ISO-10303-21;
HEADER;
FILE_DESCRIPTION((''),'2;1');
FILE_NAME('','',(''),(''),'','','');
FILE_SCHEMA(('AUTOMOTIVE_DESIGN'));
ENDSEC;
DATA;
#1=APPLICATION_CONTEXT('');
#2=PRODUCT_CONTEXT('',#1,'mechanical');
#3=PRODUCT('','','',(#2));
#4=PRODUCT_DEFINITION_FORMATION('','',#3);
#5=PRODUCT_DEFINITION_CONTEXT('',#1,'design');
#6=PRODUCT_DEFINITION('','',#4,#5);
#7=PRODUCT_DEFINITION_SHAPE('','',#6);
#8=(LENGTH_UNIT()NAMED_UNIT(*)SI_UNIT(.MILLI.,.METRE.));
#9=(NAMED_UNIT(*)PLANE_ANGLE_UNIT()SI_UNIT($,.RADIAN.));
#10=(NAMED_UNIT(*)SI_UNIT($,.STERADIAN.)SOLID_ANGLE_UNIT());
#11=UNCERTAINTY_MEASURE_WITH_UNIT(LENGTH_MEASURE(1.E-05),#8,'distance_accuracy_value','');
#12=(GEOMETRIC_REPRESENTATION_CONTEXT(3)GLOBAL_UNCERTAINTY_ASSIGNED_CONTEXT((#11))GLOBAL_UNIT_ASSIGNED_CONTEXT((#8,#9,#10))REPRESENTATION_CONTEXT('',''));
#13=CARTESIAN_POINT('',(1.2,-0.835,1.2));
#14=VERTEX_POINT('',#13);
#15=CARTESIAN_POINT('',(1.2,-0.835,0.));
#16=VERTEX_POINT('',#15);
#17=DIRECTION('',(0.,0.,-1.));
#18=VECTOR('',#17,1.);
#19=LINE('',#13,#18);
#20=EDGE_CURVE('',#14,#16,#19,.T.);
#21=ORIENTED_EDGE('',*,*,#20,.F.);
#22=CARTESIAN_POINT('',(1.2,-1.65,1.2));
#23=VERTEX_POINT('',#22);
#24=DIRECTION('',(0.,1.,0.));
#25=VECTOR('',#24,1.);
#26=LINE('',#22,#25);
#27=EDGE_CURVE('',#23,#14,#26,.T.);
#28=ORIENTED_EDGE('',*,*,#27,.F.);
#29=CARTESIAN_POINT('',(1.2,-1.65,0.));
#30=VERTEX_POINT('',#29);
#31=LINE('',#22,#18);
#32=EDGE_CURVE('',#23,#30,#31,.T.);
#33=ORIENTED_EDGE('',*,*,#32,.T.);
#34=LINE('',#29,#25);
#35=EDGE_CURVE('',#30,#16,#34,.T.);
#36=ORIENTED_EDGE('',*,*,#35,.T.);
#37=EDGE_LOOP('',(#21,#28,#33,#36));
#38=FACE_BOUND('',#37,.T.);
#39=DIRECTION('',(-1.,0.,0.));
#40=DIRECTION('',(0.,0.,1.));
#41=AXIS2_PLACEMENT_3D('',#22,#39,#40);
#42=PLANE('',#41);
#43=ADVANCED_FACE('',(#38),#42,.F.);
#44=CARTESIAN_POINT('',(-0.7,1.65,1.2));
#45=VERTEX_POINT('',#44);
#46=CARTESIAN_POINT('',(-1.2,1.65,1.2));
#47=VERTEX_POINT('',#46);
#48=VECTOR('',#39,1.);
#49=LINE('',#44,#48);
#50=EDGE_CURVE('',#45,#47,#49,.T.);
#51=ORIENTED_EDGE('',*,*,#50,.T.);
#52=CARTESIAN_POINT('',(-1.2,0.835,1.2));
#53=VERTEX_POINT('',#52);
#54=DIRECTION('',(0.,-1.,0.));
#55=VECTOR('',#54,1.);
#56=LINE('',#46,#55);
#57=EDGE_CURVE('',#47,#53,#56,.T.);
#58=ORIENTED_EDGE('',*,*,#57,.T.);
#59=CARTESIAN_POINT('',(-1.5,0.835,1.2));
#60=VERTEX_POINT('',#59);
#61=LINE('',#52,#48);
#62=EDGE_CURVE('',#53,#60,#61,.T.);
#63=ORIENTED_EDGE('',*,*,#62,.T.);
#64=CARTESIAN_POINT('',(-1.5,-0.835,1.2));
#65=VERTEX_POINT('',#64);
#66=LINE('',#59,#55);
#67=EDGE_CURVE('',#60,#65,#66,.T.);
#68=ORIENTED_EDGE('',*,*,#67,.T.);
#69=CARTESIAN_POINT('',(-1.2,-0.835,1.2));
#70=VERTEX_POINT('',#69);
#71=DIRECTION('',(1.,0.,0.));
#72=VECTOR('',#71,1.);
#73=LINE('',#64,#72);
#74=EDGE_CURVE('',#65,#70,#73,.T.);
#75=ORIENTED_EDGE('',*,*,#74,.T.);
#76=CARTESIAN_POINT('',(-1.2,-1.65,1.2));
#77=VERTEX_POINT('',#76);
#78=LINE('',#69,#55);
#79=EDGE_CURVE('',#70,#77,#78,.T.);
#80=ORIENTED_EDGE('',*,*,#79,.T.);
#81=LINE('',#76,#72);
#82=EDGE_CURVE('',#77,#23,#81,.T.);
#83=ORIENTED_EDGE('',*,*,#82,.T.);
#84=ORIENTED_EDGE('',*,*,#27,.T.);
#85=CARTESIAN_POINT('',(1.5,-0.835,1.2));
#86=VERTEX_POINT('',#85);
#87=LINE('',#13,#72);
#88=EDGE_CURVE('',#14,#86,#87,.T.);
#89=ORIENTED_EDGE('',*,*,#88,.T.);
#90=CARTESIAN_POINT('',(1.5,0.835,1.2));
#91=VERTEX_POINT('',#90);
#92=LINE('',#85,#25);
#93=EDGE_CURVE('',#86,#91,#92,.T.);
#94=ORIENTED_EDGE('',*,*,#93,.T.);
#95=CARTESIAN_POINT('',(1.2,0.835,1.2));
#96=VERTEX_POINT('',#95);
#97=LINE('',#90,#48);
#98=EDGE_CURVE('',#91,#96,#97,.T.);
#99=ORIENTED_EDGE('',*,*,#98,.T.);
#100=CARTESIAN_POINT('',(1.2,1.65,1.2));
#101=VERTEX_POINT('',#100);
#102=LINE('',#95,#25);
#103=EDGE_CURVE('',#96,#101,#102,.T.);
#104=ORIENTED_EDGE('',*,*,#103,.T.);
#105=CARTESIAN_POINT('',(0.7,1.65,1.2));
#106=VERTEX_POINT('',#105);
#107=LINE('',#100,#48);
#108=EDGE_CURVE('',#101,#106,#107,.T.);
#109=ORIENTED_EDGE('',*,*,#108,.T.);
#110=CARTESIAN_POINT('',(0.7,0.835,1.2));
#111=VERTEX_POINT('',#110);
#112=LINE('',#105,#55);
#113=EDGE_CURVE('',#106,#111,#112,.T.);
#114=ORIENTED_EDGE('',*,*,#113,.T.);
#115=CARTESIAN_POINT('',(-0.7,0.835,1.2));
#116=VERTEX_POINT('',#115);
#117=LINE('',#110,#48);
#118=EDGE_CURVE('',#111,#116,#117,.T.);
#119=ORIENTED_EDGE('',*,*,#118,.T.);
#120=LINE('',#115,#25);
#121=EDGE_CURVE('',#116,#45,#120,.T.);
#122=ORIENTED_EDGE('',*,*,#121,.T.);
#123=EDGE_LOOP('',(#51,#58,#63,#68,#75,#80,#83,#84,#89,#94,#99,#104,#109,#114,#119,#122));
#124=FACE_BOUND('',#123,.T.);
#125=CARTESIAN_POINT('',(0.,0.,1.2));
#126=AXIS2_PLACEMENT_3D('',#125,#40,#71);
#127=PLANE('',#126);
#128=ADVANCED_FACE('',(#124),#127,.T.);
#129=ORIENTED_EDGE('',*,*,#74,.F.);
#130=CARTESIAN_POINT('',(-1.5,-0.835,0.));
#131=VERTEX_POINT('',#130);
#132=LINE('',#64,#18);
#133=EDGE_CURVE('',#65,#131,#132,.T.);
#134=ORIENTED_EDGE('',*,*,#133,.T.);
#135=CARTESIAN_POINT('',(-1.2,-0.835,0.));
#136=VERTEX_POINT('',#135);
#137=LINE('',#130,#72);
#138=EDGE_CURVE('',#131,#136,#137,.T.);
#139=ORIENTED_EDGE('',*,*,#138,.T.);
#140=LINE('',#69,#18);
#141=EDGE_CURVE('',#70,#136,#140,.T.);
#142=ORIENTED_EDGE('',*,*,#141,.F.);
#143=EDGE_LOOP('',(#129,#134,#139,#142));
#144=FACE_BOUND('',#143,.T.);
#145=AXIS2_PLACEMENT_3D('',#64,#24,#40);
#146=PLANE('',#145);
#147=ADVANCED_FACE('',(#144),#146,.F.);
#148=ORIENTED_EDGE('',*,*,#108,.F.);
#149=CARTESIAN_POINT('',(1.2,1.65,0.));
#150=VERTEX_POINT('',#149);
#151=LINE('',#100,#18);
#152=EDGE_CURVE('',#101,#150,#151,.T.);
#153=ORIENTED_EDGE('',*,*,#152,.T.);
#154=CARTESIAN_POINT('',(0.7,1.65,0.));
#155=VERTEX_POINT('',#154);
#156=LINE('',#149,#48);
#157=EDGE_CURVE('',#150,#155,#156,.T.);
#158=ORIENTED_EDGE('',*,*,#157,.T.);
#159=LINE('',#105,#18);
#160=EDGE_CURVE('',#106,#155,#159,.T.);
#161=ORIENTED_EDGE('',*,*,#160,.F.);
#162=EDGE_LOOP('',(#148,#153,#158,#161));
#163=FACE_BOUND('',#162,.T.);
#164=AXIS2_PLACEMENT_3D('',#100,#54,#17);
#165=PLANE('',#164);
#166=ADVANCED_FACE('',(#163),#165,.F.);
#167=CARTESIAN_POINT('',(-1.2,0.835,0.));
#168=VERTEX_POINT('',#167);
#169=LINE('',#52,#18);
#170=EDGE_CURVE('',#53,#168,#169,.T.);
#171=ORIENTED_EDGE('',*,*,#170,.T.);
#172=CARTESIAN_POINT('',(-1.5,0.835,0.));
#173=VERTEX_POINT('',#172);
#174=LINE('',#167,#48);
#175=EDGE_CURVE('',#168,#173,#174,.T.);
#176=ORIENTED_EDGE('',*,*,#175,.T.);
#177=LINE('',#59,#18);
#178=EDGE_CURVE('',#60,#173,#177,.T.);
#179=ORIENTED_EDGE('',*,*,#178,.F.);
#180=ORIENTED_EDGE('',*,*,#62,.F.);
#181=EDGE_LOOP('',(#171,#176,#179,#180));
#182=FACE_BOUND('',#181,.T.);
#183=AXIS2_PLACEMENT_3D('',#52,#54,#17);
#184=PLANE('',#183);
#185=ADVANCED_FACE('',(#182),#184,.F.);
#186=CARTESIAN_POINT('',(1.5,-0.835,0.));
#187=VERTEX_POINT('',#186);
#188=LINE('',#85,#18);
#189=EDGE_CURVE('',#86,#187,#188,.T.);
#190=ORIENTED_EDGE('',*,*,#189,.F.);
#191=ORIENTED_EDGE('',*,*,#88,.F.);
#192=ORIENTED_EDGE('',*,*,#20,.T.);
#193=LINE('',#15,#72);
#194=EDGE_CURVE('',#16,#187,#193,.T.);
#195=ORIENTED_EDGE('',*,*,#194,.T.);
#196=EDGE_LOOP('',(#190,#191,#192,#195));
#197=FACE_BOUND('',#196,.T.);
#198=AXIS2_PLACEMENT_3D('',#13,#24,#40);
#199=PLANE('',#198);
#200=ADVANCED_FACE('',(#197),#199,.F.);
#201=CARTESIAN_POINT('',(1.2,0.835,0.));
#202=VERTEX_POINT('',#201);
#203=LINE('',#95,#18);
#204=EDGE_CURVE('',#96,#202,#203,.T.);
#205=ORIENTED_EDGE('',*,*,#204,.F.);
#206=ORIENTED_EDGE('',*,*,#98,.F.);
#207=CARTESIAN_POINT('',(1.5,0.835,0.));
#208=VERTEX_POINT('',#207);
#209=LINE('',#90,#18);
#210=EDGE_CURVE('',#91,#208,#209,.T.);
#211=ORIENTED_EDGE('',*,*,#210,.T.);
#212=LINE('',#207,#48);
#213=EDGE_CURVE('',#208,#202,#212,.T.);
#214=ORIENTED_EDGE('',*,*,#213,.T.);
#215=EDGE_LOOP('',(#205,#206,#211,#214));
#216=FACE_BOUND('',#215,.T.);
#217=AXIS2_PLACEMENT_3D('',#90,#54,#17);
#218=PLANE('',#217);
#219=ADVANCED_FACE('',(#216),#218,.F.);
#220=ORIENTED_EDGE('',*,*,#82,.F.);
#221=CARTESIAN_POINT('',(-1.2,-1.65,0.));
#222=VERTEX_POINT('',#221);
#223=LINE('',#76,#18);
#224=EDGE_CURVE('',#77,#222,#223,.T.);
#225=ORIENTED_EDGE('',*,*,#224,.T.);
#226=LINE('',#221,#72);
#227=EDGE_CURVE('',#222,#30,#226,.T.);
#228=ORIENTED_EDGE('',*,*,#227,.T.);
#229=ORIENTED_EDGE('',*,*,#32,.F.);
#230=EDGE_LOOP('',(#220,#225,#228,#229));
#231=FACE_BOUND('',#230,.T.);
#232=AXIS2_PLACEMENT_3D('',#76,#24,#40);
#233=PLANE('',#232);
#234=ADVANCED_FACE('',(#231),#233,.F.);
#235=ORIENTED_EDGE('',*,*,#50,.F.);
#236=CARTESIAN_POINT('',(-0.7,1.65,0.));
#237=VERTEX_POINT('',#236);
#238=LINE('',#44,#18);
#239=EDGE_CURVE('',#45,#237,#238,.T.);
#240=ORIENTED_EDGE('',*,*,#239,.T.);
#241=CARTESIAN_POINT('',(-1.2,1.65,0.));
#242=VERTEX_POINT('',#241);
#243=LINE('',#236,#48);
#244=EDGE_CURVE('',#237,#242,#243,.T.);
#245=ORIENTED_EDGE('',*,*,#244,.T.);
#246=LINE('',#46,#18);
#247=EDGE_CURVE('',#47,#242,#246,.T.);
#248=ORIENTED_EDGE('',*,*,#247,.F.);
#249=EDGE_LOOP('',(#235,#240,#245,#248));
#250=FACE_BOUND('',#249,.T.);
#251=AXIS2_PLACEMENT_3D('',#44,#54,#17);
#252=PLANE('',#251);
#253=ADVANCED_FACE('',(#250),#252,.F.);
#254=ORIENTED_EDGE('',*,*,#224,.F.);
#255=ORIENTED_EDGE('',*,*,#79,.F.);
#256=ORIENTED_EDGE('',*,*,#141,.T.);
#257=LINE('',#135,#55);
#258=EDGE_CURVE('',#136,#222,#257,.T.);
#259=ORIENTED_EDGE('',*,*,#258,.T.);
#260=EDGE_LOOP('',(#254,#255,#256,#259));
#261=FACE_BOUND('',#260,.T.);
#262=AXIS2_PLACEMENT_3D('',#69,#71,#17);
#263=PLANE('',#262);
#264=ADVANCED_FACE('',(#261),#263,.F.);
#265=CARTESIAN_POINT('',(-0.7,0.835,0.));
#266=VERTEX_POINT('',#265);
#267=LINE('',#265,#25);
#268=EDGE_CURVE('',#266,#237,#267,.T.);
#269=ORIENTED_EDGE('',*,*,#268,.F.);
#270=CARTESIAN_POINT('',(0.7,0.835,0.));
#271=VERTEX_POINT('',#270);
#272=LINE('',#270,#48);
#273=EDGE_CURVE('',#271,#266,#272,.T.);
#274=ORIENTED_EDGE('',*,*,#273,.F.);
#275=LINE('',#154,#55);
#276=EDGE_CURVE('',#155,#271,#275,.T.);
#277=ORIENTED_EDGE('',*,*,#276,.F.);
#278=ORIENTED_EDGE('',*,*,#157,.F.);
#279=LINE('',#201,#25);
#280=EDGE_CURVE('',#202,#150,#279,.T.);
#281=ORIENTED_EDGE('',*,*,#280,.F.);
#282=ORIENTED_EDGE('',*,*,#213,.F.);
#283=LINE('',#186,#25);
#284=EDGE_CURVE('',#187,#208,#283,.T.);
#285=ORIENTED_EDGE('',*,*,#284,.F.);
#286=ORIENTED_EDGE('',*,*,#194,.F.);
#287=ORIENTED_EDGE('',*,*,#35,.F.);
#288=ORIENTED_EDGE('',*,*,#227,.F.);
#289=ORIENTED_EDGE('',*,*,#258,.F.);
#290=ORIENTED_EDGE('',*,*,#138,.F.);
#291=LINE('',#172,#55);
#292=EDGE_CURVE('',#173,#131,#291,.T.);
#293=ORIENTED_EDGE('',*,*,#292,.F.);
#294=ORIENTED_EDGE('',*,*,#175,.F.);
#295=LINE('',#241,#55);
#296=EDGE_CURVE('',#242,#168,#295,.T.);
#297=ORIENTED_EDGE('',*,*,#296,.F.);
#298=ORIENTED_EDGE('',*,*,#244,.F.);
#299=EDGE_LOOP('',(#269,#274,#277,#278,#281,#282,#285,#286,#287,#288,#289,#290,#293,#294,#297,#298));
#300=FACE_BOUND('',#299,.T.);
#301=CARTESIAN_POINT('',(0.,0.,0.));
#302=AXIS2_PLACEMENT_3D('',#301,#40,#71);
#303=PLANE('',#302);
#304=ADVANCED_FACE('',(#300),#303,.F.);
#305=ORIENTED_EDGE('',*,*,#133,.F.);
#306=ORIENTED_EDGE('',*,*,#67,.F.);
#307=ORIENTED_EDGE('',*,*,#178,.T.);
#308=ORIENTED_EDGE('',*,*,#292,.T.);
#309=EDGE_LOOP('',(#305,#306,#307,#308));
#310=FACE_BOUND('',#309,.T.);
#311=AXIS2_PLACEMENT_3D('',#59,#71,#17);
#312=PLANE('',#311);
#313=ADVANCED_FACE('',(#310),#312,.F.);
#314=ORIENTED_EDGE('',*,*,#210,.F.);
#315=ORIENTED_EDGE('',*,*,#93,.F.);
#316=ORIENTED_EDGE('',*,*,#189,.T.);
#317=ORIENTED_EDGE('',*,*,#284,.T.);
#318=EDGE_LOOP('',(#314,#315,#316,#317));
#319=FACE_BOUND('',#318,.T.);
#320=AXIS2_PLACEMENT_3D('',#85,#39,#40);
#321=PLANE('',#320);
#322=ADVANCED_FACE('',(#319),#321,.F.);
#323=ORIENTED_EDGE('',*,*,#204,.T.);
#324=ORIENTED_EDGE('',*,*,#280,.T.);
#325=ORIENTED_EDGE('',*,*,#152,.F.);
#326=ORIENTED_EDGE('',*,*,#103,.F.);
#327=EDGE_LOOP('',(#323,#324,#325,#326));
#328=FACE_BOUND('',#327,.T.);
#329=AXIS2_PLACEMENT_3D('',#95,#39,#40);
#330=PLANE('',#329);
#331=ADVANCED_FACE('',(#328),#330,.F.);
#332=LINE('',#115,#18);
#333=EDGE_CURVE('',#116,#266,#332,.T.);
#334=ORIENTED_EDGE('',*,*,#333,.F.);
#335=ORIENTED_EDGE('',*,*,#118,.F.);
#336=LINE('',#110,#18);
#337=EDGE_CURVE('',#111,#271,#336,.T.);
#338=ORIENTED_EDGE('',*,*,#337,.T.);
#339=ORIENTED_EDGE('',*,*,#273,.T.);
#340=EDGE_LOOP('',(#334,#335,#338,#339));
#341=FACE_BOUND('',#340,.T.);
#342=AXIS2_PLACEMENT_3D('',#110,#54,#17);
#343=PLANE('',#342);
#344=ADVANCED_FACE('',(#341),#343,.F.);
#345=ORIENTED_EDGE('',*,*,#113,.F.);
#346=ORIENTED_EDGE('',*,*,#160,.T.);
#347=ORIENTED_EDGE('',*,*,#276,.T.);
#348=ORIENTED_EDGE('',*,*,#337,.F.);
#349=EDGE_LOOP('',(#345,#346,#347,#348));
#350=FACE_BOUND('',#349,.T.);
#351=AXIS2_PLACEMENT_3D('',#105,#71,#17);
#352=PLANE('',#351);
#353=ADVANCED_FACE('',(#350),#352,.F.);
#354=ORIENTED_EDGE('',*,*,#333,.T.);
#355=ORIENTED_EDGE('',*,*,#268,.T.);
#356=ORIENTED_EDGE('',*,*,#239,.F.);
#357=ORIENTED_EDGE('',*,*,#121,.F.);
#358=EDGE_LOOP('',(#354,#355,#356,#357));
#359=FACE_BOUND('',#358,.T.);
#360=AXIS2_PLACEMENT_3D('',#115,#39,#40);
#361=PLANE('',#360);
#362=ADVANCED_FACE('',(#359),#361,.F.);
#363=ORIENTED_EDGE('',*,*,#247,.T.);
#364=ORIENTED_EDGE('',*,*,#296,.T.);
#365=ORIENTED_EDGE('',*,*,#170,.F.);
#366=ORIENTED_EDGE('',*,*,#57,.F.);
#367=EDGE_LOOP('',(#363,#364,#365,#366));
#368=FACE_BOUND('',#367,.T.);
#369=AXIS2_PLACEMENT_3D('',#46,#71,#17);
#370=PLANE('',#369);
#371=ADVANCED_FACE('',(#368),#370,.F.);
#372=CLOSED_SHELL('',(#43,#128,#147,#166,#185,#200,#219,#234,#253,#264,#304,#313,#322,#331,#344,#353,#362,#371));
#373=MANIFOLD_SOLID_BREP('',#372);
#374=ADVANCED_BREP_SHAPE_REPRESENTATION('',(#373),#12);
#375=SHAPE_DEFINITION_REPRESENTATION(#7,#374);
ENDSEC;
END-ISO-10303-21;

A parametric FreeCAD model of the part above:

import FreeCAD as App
import Part
import Sketcher

V = App.Vector

doc = App.newDocument("Part")
params = doc.addObject("Spreadsheet::Sheet", "Params")
for row, (alias, value) in enumerate([
    ("sketch1_width", "0.3 mm"),
    ("sketch1_width2", "2.4 mm"),
    ("sketch1_width3", "0.5 mm"),
    ("sketch1_height", "1.67 mm"),
    ("pad1_length", "1.2 mm"),
], start=1):
    params.set(f"A{row}", alias)
    params.set(f"B{row}", "=" + value)
    params.setAlias(f"B{row}", alias)

body = doc.addObject("PartDesign::Body", "Body")

# Sketch on XY plane
sketch1 = body.newObject("Sketcher::SketchObject", "Sketch")
sketch1.AttachmentSupport = (doc.getObject("XY_Plane"), [""])
sketch1.MapMode = "FlatFace"
sketch1.addGeometry([
    Part.LineSegment(V(-1.5, -0.835, 0), V(-1.2, -0.835, 0)),  # 0
    Part.LineSegment(V(-1.2, -0.835, 0), V(-1.2, -1.65, 0)),  # 1
    Part.LineSegment(V(-1.2, -1.65, 0), V(1.2, -1.65, 0)),  # 2
    Part.LineSegment(V(1.2, -1.65, 0), V(1.2, -0.835, 0)),  # 3
    Part.LineSegment(V(1.2, -0.835, 0), V(1.5, -0.835, 0)),  # 4
    Part.LineSegment(V(1.5, -0.835, 0), V(1.5, 0.835, 0)),  # 5
    Part.LineSegment(V(1.5, 0.835, 0), V(1.2, 0.835, 0)),  # 6
    Part.LineSegment(V(1.2, 0.835, 0), V(1.2, 1.65, 0)),  # 7
    Part.LineSegment(V(1.2, 1.65, 0), V(0.7, 1.65, 0)),  # 8
    Part.LineSegment(V(0.7, 1.65, 0), V(0.7, 0.835, 0)),  # 9
    Part.LineSegment(V(0.7, 0.835, 0), V(-0.7, 0.835, 0)),  # 10
    Part.LineSegment(V(-0.7, 0.835, 0), V(-0.7, 1.65, 0)),  # 11
    Part.LineSegment(V(-0.7, 1.65, 0), V(-1.2, 1.65, 0)),  # 12
    Part.LineSegment(V(-1.2, 1.65, 0), V(-1.2, 0.835, 0)),  # 13
    Part.LineSegment(V(-1.2, 0.835, 0), V(-1.5, 0.835, 0)),  # 14
    Part.LineSegment(V(-1.5, 0.835, 0), V(-1.5, -0.835, 0)),  # 15
], False)
sketch1.addConstraint([
    Sketcher.Constraint("Coincident", 0, 2, 1, 1),
    Sketcher.Constraint("Coincident", 1, 2, 2, 1),
    Sketcher.Constraint("Coincident", 2, 2, 3, 1),
    Sketcher.Constraint("Coincident", 3, 2, 4, 1),
    Sketcher.Constraint("Coincident", 4, 2, 5, 1),
    Sketcher.Constraint("Coincident", 5, 2, 6, 1),
    Sketcher.Constraint("Coincident", 6, 2, 7, 1),
    Sketcher.Constraint("Coincident", 7, 2, 8, 1),
    Sketcher.Constraint("Coincident", 8, 2, 9, 1),
    Sketcher.Constraint("Coincident", 9, 2, 10, 1),
    Sketcher.Constraint("Coincident", 10, 2, 11, 1),
    Sketcher.Constraint("Coincident", 11, 2, 12, 1),
    Sketcher.Constraint("Coincident", 12, 2, 13, 1),
    Sketcher.Constraint("Coincident", 13, 2, 14, 1),
    Sketcher.Constraint("Coincident", 14, 2, 15, 1),
    Sketcher.Constraint("Coincident", 15, 2, 0, 1),
    Sketcher.Constraint("Horizontal", 0),
    Sketcher.Constraint("Vertical", 1),
    Sketcher.Constraint("Horizontal", 2),
    Sketcher.Constraint("Vertical", 3),
    Sketcher.Constraint("Horizontal", 4),
    Sketcher.Constraint("Vertical", 5),
    Sketcher.Constraint("Horizontal", 6),
    Sketcher.Constraint("Vertical", 7),
    Sketcher.Constraint("Horizontal", 8),
    Sketcher.Constraint("Vertical", 9),
    Sketcher.Constraint("Horizontal", 10),
    Sketcher.Constraint("Vertical", 11),
    Sketcher.Constraint("Horizontal", 12),
    Sketcher.Constraint("Vertical", 13),
    Sketcher.Constraint("Horizontal", 14),
    Sketcher.Constraint("Vertical", 15),
    Sketcher.Constraint("Symmetric", 0, 2, 6, 2, -1, 1),
    Sketcher.Constraint("Symmetric", 2, 2, 12, 2, -1, 1),
    Sketcher.Constraint("Symmetric", 4, 2, 14, 2, -1, 1),
    Sketcher.Constraint("Symmetric", 0, 2, 3, 2, -2),
    Sketcher.Constraint("Symmetric", 8, 2, 11, 2, -2),
    Sketcher.Constraint("Horizontal", 6, 2, 9, 2),
    Sketcher.Constraint("DistanceX", 0, 1, 0, 2, 0.3),
    Sketcher.Constraint("DistanceX", 2, 1, 2, 2, 2.4),
    Sketcher.Constraint("DistanceX", 8, 2, 8, 1, 0.5),
    Sketcher.Constraint("DistanceY", 5, 1, 5, 2, 1.67),
    Sketcher.Constraint("DistanceY", 2, 2, 7, 2, 3.3),
])
sketch1.setExpression("Constraints[38]", "Params.sketch1_width")
sketch1.setExpression("Constraints[39]", "Params.sketch1_width2")
sketch1.setExpression("Constraints[40]", "Params.sketch1_width3")
sketch1.setExpression("Constraints[41]", "Params.sketch1_height")
pad1 = body.newObject("PartDesign::Pad", "Pad")
pad1.Profile = sketch1
pad1.setExpression("Length", "Params.pad1_length")

doc.recompute()
